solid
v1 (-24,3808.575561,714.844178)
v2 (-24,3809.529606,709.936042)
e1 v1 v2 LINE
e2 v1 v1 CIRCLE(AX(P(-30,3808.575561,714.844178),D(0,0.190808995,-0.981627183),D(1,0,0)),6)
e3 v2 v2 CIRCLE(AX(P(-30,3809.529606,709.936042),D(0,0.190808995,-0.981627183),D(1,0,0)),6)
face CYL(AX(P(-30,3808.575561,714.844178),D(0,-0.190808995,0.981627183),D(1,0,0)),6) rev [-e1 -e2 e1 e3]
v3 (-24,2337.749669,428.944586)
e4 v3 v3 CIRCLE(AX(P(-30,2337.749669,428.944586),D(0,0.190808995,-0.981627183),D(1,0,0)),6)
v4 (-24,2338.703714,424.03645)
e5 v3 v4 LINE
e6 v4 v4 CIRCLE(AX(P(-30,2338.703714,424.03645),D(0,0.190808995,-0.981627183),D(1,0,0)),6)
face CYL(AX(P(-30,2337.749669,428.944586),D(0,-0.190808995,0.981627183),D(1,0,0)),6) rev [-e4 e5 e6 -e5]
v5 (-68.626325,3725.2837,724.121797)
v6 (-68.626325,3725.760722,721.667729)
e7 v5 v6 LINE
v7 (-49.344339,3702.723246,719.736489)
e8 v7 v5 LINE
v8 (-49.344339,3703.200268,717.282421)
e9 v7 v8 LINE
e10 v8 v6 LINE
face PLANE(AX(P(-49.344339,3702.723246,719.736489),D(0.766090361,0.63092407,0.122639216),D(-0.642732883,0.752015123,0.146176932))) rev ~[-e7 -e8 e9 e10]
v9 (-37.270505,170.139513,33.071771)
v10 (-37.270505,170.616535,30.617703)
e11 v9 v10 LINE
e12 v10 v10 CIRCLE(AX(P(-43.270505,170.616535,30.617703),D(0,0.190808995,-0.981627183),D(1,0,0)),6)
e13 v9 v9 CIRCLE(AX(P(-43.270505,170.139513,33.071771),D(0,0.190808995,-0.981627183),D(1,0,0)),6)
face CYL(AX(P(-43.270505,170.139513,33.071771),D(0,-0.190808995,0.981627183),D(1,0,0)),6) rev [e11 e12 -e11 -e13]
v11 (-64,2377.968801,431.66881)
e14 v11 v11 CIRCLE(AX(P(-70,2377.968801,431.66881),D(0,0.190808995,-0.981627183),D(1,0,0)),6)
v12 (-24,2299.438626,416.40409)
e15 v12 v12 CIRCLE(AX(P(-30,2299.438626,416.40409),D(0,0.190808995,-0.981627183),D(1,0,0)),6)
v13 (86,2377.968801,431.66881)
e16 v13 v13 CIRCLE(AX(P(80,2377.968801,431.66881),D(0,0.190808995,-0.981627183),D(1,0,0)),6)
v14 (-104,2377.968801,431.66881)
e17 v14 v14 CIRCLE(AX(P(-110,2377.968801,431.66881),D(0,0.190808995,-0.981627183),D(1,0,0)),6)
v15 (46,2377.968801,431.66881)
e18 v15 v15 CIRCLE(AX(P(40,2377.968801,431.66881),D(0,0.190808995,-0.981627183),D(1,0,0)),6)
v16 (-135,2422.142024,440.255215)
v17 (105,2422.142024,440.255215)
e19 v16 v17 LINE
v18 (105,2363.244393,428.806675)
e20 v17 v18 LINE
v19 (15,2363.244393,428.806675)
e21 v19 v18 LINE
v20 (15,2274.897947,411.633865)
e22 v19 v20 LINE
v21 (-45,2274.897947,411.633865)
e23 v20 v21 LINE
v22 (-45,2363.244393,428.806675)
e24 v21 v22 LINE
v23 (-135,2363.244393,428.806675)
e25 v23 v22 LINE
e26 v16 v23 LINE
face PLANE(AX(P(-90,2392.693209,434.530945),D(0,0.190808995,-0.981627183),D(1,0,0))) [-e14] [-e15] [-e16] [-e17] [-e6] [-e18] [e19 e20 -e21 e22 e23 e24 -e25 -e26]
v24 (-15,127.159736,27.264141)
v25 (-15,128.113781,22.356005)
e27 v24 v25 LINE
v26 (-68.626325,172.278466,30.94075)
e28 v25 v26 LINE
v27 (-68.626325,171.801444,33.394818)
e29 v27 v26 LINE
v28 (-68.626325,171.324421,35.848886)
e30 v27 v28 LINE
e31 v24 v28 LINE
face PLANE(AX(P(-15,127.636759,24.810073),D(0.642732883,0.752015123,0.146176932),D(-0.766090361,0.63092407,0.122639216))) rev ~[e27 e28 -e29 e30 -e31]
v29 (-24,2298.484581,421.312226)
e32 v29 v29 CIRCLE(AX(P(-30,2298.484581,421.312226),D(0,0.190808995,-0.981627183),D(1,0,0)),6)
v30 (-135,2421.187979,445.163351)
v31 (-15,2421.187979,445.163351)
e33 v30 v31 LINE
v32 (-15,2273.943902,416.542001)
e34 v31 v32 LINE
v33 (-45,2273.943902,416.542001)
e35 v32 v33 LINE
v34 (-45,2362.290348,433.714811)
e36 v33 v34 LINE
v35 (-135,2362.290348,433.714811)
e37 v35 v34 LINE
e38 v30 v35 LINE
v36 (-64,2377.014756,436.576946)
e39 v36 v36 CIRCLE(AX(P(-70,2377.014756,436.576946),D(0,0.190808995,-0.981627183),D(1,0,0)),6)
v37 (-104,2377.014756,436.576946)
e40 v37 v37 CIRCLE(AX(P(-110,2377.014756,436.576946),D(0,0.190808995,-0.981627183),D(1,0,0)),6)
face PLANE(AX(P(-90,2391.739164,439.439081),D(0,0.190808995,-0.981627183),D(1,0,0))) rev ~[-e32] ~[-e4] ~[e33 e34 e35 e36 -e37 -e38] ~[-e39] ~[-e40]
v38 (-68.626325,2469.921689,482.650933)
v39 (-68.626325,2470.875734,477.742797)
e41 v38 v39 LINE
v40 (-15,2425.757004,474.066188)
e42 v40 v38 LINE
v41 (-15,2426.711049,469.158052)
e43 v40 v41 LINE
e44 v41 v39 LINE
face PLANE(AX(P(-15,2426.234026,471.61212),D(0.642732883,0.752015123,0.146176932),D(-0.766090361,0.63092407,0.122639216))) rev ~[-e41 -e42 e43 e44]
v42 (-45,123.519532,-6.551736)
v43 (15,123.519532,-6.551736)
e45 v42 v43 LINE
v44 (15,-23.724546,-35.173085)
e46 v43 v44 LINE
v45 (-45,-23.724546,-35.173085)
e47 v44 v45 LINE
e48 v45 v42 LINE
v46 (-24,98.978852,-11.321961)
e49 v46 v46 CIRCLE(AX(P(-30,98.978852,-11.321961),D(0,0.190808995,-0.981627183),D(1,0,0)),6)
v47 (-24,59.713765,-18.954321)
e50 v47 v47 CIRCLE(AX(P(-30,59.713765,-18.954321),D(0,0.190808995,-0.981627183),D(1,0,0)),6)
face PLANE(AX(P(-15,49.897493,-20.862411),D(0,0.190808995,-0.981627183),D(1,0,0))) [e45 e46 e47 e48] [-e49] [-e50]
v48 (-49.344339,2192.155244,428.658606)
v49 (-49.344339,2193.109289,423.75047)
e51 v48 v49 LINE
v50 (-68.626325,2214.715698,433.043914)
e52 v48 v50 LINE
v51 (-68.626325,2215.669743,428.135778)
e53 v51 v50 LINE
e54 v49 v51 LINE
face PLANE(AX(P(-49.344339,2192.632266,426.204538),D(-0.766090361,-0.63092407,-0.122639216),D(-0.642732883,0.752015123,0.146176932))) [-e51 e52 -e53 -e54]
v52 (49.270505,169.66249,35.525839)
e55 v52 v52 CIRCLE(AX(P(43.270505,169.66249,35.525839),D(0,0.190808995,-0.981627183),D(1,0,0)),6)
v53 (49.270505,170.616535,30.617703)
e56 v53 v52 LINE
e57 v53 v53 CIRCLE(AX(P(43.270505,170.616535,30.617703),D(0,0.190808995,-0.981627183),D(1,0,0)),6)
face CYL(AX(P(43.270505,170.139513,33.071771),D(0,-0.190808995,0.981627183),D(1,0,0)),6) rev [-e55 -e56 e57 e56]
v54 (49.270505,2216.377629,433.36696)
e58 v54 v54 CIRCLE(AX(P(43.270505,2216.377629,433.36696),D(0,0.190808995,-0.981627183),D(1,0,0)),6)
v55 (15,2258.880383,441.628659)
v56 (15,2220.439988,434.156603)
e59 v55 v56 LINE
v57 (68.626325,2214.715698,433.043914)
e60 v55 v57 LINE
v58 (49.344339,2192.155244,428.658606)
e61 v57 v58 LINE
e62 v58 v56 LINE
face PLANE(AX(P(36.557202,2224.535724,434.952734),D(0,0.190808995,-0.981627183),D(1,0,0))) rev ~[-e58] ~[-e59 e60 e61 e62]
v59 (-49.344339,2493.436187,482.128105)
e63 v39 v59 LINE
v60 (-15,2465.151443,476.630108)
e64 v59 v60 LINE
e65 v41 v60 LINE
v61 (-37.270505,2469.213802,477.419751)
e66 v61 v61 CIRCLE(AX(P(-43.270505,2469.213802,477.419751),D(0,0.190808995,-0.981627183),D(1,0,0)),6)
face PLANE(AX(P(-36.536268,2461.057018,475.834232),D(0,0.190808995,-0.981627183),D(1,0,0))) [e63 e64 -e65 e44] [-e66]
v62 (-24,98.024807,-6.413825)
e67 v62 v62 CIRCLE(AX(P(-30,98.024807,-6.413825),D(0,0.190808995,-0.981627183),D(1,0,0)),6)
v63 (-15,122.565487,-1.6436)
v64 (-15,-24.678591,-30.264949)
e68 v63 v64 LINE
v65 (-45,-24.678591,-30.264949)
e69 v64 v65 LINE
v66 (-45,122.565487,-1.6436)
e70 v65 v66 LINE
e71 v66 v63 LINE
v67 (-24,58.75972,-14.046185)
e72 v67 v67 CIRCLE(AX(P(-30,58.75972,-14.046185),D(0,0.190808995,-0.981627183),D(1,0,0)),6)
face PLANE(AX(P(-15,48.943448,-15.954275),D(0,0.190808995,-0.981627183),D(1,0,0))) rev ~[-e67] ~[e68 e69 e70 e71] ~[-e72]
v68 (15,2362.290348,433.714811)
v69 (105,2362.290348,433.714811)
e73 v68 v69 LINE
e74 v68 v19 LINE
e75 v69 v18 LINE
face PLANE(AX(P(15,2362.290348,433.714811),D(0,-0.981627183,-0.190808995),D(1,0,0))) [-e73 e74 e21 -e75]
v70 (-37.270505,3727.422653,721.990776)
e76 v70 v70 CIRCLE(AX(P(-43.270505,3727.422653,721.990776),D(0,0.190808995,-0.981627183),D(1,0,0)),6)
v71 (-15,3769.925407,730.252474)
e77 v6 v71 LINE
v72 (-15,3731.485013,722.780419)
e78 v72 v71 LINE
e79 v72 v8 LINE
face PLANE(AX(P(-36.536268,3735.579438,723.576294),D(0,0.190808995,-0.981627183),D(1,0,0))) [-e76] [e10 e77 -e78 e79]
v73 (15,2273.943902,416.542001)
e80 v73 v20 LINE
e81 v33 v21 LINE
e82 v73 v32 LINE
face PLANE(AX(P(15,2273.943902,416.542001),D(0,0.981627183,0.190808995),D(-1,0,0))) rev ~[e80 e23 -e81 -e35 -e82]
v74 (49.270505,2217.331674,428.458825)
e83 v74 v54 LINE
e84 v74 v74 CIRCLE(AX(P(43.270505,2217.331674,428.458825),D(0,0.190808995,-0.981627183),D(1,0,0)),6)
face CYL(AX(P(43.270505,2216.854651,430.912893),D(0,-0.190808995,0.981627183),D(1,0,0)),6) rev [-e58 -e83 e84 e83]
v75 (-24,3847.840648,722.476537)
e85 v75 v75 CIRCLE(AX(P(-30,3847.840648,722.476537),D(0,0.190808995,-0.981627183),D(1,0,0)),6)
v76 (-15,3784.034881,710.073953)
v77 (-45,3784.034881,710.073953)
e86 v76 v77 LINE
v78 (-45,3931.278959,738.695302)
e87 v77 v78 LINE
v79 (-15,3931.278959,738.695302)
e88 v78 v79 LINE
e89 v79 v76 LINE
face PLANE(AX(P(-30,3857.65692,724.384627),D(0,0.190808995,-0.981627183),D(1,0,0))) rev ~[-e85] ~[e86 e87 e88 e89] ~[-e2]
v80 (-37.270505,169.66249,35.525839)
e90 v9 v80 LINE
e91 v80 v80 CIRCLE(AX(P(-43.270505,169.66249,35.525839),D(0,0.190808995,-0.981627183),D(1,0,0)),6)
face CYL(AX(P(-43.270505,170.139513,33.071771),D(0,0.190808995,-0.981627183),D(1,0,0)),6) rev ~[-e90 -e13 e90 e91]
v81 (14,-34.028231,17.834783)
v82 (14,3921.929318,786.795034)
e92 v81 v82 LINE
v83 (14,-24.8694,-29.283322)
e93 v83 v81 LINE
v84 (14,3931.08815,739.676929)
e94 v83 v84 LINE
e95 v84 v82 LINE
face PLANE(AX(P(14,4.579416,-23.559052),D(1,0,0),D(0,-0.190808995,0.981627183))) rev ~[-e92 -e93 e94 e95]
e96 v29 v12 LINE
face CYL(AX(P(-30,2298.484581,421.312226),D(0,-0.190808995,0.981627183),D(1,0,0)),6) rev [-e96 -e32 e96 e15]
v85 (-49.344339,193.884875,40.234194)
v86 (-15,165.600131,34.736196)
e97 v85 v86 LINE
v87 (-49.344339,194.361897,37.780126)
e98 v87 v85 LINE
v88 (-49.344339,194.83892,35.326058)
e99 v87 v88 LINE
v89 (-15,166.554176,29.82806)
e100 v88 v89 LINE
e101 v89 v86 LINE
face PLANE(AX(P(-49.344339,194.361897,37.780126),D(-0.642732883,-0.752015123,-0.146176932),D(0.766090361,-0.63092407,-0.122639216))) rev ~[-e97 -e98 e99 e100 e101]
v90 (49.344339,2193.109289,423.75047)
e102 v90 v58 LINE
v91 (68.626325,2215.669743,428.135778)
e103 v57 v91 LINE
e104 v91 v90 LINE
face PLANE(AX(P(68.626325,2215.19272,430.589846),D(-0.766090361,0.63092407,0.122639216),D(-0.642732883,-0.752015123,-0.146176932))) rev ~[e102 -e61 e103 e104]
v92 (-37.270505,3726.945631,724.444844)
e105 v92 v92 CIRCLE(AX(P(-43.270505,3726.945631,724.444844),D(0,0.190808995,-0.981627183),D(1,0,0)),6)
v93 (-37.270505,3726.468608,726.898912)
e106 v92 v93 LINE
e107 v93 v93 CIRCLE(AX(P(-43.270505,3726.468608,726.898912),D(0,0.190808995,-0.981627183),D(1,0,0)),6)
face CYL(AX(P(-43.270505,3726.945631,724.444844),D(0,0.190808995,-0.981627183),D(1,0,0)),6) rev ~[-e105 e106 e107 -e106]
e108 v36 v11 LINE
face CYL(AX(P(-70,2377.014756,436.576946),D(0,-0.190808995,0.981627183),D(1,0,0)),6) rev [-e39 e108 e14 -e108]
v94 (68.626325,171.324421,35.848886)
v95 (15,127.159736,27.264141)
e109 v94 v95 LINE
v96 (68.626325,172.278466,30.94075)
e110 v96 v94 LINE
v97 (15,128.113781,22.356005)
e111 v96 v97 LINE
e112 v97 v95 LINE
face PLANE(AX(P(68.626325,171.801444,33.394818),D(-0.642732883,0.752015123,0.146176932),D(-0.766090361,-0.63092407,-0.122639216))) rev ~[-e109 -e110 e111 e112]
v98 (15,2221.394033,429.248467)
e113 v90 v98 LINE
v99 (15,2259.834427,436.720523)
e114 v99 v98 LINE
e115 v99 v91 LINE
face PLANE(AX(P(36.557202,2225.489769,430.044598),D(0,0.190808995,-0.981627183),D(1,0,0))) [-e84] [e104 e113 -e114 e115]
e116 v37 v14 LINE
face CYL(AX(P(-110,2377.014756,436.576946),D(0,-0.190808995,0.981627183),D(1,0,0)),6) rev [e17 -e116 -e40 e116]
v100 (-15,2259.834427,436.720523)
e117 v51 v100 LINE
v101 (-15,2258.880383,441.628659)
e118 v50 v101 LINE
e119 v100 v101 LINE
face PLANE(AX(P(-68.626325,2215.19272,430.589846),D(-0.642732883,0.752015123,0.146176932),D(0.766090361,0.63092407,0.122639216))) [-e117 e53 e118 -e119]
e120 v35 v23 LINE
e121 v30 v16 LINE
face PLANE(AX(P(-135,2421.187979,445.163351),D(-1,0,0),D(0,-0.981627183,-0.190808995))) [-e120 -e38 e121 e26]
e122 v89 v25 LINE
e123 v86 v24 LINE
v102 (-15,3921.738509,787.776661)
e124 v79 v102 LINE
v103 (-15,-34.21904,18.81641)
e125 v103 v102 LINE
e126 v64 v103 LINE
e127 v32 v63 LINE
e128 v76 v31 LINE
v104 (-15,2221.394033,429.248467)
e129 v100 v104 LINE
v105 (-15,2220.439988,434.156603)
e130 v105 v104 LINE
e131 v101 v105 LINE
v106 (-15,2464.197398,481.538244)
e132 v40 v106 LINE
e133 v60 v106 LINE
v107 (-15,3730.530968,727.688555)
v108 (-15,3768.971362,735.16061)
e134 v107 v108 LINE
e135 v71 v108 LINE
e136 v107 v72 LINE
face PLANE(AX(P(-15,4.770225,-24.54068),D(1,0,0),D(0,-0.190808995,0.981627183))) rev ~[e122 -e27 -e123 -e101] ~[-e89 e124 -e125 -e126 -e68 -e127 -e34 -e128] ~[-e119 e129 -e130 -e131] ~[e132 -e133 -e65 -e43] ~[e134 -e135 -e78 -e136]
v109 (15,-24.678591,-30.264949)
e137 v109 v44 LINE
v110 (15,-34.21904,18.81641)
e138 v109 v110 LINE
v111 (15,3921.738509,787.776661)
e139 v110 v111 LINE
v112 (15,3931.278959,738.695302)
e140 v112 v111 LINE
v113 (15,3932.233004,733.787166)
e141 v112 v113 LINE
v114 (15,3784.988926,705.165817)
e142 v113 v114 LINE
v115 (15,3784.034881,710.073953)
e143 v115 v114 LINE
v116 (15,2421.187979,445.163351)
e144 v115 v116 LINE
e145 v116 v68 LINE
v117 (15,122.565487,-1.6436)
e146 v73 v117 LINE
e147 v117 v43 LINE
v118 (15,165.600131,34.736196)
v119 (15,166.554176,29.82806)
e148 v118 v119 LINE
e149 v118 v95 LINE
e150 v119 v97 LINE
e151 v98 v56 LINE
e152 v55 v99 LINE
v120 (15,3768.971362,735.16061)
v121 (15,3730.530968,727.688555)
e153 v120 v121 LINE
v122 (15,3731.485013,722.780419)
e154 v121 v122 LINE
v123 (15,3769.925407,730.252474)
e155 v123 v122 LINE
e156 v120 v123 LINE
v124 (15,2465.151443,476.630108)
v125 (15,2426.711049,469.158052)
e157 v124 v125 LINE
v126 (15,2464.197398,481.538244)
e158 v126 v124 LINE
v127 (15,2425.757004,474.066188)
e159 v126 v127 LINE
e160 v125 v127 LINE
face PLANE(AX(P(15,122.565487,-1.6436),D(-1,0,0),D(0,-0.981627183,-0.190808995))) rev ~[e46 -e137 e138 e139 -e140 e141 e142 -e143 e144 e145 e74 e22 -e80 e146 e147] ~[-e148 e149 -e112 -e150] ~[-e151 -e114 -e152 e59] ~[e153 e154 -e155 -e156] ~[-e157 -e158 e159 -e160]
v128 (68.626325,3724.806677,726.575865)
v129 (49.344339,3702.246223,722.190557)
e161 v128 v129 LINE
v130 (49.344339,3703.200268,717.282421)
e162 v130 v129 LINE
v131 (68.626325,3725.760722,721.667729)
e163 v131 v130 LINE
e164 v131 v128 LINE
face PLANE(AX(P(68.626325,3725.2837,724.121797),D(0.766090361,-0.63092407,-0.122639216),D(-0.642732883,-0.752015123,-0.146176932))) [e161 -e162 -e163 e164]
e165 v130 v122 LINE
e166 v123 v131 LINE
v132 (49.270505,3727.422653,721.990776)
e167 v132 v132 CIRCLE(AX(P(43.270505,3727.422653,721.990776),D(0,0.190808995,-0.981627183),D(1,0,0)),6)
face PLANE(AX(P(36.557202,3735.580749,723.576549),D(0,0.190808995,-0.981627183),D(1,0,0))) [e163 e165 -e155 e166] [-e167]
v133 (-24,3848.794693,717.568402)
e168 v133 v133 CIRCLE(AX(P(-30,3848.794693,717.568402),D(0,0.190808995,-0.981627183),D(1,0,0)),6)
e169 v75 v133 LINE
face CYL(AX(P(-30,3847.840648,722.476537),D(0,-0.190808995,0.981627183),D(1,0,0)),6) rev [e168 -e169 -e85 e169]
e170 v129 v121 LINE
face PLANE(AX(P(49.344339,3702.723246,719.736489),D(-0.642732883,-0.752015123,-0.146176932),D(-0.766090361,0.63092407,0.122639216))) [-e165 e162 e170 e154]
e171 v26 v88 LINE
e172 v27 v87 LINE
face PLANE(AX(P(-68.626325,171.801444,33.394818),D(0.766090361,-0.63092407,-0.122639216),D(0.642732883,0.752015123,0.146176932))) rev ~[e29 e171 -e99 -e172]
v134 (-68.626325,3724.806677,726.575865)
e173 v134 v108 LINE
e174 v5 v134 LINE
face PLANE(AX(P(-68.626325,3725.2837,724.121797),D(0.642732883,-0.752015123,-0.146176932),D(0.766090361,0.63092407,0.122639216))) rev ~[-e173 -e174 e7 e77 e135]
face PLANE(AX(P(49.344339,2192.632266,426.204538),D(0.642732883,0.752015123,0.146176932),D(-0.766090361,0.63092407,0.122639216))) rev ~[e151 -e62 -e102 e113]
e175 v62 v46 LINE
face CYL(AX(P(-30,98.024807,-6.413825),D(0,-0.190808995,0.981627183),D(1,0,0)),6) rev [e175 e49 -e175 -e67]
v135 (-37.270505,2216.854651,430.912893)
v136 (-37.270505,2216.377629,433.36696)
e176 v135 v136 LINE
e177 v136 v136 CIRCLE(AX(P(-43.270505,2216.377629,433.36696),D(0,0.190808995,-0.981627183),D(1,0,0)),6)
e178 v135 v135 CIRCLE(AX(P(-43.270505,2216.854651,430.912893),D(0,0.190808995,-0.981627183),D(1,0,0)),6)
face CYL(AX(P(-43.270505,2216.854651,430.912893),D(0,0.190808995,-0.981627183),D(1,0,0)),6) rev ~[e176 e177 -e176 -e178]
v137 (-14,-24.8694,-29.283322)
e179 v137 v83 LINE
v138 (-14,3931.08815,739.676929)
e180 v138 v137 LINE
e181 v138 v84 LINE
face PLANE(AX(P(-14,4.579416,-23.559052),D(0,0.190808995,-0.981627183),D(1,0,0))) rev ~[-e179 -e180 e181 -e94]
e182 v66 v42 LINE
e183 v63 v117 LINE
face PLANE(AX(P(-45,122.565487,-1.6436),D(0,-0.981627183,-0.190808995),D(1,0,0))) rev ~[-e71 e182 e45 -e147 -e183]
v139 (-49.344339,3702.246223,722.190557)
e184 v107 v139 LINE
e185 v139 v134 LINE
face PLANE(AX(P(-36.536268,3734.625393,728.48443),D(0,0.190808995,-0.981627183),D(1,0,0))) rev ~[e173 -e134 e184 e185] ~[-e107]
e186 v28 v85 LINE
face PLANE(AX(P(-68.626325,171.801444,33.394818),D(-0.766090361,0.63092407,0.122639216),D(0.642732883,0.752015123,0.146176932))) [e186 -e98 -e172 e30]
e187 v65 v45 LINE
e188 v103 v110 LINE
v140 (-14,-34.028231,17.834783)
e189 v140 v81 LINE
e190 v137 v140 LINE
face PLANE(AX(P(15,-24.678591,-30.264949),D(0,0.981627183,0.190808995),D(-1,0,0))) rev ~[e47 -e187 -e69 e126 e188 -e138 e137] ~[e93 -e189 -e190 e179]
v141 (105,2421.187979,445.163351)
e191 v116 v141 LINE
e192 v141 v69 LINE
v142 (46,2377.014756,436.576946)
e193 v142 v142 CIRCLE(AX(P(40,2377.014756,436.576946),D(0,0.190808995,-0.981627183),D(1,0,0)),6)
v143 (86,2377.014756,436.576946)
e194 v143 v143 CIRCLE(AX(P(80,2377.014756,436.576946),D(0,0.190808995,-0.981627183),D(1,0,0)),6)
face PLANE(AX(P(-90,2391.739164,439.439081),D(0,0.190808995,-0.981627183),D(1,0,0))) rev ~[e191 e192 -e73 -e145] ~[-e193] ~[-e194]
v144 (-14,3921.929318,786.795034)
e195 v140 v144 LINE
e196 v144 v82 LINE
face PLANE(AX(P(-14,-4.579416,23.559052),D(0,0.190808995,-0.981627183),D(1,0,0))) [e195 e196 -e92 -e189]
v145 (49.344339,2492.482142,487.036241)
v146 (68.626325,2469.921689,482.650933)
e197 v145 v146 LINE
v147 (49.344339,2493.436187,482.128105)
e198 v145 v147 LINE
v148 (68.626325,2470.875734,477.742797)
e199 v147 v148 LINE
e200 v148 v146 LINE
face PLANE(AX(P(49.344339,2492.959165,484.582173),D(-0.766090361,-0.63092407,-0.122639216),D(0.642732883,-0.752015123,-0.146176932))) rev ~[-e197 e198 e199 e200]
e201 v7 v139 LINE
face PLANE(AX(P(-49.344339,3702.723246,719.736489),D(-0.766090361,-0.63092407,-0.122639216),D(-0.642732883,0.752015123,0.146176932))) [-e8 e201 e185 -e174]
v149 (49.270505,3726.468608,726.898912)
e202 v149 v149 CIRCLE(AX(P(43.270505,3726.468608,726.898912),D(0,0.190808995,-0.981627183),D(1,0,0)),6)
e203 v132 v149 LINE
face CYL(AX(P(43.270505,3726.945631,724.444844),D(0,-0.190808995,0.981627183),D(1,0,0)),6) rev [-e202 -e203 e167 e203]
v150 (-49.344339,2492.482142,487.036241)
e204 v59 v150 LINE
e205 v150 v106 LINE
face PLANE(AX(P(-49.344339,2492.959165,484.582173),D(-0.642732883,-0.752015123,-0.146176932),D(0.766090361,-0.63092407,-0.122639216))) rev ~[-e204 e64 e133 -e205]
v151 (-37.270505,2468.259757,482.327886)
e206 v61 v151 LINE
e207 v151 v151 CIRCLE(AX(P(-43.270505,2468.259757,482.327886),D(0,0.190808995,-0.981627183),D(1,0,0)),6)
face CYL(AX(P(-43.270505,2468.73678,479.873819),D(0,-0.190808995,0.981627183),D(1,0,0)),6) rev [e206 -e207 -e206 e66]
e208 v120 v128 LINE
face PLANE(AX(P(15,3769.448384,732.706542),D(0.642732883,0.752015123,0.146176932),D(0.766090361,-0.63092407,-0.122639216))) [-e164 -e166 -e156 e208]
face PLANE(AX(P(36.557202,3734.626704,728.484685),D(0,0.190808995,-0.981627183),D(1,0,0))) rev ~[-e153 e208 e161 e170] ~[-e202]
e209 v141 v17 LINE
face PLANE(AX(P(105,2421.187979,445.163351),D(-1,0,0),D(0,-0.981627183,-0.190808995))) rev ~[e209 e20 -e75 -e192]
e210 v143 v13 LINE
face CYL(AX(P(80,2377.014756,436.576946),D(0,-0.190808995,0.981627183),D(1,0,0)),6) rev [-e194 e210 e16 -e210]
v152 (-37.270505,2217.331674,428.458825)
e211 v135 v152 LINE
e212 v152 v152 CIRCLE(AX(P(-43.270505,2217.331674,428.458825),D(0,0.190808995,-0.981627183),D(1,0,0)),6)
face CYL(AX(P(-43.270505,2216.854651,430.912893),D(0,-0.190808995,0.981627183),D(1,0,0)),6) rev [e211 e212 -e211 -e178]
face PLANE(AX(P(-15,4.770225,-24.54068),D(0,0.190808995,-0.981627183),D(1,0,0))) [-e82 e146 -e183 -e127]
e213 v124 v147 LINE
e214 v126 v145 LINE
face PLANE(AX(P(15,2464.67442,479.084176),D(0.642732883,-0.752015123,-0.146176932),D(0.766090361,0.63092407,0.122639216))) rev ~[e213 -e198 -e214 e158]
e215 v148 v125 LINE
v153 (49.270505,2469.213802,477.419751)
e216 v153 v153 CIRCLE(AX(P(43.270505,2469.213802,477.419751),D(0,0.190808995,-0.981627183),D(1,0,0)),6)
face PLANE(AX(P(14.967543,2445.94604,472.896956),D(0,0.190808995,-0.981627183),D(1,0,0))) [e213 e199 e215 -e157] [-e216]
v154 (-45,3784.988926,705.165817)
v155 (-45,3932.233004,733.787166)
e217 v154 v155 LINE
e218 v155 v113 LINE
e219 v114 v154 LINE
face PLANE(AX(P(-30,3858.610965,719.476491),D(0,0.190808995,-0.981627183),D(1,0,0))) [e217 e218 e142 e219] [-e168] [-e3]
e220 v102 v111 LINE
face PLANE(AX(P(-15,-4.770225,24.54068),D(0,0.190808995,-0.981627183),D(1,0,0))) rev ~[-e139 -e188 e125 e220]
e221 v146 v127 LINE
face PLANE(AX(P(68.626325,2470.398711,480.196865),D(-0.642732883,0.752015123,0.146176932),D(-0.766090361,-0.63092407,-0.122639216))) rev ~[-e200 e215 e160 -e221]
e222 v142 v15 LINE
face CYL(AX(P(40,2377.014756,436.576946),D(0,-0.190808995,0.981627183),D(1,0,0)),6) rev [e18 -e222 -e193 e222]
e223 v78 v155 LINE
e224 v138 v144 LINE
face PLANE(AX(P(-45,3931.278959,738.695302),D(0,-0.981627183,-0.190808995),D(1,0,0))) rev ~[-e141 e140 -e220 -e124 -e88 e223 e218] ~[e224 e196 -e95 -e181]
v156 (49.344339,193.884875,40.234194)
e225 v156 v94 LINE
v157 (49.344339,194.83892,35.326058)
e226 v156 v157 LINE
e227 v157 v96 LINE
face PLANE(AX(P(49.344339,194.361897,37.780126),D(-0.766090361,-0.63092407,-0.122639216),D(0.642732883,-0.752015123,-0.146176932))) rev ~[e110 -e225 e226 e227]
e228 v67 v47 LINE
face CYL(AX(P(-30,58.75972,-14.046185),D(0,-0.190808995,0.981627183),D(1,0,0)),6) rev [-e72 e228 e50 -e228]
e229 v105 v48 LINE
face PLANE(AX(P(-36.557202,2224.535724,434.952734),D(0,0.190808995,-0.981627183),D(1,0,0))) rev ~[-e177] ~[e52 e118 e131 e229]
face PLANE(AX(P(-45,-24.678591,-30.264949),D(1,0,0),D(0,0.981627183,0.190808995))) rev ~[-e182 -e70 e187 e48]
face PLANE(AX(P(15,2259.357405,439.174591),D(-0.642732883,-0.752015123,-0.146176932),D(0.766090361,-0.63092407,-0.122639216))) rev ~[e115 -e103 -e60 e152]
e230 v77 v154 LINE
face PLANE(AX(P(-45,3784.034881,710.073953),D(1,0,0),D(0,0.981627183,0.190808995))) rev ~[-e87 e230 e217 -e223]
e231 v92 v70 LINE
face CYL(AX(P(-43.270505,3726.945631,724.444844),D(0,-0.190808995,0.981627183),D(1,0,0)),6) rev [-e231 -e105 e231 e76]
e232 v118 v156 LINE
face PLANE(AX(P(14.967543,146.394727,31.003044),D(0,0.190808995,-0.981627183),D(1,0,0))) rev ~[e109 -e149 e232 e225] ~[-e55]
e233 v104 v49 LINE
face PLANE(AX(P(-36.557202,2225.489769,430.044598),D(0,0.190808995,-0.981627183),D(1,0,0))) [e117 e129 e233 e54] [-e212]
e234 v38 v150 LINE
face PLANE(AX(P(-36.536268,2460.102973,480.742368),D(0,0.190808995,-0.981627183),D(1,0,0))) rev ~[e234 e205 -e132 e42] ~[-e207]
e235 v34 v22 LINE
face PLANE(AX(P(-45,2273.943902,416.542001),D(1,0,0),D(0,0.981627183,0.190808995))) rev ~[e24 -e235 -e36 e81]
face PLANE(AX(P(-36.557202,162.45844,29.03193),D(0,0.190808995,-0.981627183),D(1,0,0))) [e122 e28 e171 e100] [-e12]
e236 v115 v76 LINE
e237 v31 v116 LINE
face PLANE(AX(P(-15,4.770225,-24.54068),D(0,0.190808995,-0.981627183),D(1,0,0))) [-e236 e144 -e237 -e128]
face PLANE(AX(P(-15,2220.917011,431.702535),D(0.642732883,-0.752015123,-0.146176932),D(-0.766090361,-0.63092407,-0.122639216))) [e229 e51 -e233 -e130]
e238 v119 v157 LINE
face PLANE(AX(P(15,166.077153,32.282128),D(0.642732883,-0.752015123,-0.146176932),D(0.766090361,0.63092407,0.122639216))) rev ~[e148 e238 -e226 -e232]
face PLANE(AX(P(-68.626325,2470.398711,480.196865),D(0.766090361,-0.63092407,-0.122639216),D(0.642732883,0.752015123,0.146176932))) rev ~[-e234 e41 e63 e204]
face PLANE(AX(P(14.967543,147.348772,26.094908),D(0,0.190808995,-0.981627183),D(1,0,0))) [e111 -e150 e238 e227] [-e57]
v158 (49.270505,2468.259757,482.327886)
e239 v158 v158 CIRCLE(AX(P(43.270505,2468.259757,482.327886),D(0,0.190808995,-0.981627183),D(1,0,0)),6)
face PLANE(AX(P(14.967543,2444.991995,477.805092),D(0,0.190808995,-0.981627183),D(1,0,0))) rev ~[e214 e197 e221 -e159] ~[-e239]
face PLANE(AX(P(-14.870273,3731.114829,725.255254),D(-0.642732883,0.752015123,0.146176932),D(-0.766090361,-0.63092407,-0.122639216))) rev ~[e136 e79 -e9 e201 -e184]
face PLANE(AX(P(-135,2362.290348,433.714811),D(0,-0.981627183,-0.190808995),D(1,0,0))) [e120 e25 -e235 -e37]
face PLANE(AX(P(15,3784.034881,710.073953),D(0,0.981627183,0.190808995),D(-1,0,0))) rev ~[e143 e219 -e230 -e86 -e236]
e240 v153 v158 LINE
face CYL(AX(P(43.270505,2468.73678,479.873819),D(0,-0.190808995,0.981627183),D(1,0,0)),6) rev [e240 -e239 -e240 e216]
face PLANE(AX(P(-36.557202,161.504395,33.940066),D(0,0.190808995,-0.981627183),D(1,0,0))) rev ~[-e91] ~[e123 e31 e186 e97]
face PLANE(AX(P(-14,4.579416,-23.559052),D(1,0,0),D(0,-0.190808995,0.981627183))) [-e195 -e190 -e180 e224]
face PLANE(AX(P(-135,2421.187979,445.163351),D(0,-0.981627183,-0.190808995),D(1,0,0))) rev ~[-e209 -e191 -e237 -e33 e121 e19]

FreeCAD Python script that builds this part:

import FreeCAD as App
import Part
import Sketcher
from FreeCAD import Vector
Q = App.Units.Quantity

doc = App.newDocument("Part")
body = doc.addObject("PartDesign::Body", "Body")

# Sketch on an angled plane
sketch1 = body.newObject("Sketcher::SketchObject", "Sketch")
sketch1.Placement = App.Placement(Vector(0, 0, 0), App.Rotation(Vector(1, 0, 0), Vector(0, -0.190808995, 0.981627183), Vector(0, -0.981627183, -0.190808995), "ZXY"))
sketch1.addGeometry(Part.LineSegment(Vector(-15, 25, 0), Vector(-15, -25, 0)), False)
sketch1.addGeometry(Part.LineSegment(Vector(-15, -25, 0), Vector(15, -25, 0)), False)
sketch1.addGeometry(Part.LineSegment(Vector(15, -25, 0), Vector(15, 25, 0)), False)
sketch1.addGeometry(Part.LineSegment(Vector(15, 25, 0), Vector(-15, 25, 0)), False)
sketch1.addGeometry(Part.LineSegment(Vector(14, -24, 0), Vector(-14, -24, 0)), False)
sketch1.addGeometry(Part.LineSegment(Vector(-14, -24, 0), Vector(-14, 24, 0)), False)
sketch1.addGeometry(Part.LineSegment(Vector(-14, 24, 0), Vector(14, 24, 0)), False)
sketch1.addGeometry(Part.LineSegment(Vector(14, 24, 0), Vector(14, -24, 0)), False)
sketch1.addConstraint(Sketcher.Constraint("Coincident", 0, 2, 1, 1))
sketch1.addConstraint(Sketcher.Constraint("Coincident", 1, 2, 2, 1))
sketch1.addConstraint(Sketcher.Constraint("Coincident", 2, 2, 3, 1))
sketch1.addConstraint(Sketcher.Constraint("Coincident", 3, 2, 0, 1))
sketch1.addConstraint(Sketcher.Constraint("Coincident", 4, 2, 5, 1))
sketch1.addConstraint(Sketcher.Constraint("Coincident", 5, 2, 6, 1))
sketch1.addConstraint(Sketcher.Constraint("Coincident", 6, 2, 7, 1))
sketch1.addConstraint(Sketcher.Constraint("Coincident", 7, 2, 4, 1))
sketch1.addConstraint(Sketcher.Constraint("Vertical", 0))
sketch1.addConstraint(Sketcher.Constraint("Horizontal", 1))
sketch1.addConstraint(Sketcher.Constraint("Vertical", 2))
sketch1.addConstraint(Sketcher.Constraint("Horizontal", 3))
sketch1.addConstraint(Sketcher.Constraint("Horizontal", 4))
sketch1.addConstraint(Sketcher.Constraint("Vertical", 5))
sketch1.addConstraint(Sketcher.Constraint("Horizontal", 6))
sketch1.addConstraint(Sketcher.Constraint("Vertical", 7))
sketch1.addConstraint(Sketcher.Constraint("Symmetric", 0, 2, 2, 2, -1, 1))
sketch1.addConstraint(Sketcher.Constraint("Symmetric", 4, 2, 6, 2, -1, 1))
sketch1.addConstraint(Sketcher.Constraint("DistanceX", 1, 1, 1, 2, Q("30 mm")))
sketch1.addConstraint(Sketcher.Constraint("DistanceX", 4, 2, 4, 1, Q("28 mm")))
sketch1.addConstraint(Sketcher.Constraint("DistanceY", 0, 2, 0, 1, Q("50 mm")))
sketch1.addConstraint(Sketcher.Constraint("DistanceY", 5, 1, 5, 2, Q("48 mm")))
pad1 = body.newObject("PartDesign::Pad", "Pad")
pad1.Profile = sketch1
pad1.Type = "TwoLengths"
pad1.Length = 30
pad1.Length2 = 4000

# Sketch on an angled plane
sketch2 = body.newObject("Sketcher::SketchObject", "Sketch001")
sketch2.Placement = App.Placement(Vector(0, 4.770225, -24.54068), App.Rotation(Vector(1, 0, 0), Vector(0, -0.981627183, -0.190808995), Vector(0, 0.190808995, -0.981627183), "ZXY"))
sketch2.addGeometry(Part.LineSegment(Vector(-45, -3999.999996, 0), Vector(15, -3999.999996, 0)), False)
sketch2.addGeometry(Part.LineSegment(Vector(15, -3999.999996, 0), Vector(15, -3849.999996, 0)), False)
sketch2.addGeometry(Part.LineSegment(Vector(15, -3849.999996, 0), Vector(-45, -3849.999996, 0)), False)
sketch2.addGeometry(Part.LineSegment(Vector(-45, -3849.999996, 0), Vector(-45, -3999.999996, 0)), False)
sketch2.addGeometry(Part.Circle(Vector(-30, -3914.999996, 0), Vector(0, 0, 1), 6), False)
sketch2.addGeometry(Part.Circle(Vector(-30, -3874.999996, 0), Vector(0, 0, 1), 6), False)
sketch2.addConstraint(Sketcher.Constraint("Coincident", 0, 2, 1, 1))
sketch2.addConstraint(Sketcher.Constraint("Coincident", 1, 2, 2, 1))
sketch2.addConstraint(Sketcher.Constraint("Coincident", 2, 2, 3, 1))
sketch2.addConstraint(Sketcher.Constraint("Coincident", 3, 2, 0, 1))
sketch2.addConstraint(Sketcher.Constraint("Horizontal", 0))
sketch2.addConstraint(Sketcher.Constraint("Vertical", 1))
sketch2.addConstraint(Sketcher.Constraint("Horizontal", 2))
sketch2.addConstraint(Sketcher.Constraint("Vertical", 3))
sketch2.addConstraint(Sketcher.Constraint("Equal", 4, 5))
sketch2.addConstraint(Sketcher.Constraint("Vertical", 4, 3, 5, 3))
sketch2.addConstraint(Sketcher.Constraint("Diameter", 4, Q("12 mm")))
sketch2.addConstraint(Sketcher.Constraint("DistanceX", 0, 1, 0, 2, Q("60 mm")))
sketch2.addConstraint(Sketcher.Constraint("DistanceY", 1, 1, 1, 2, Q("150 mm")))
sketch2.addConstraint(Sketcher.Constraint("DistanceX", 4, 3, -1, 1, Q("30 mm")))
sketch2.addConstraint(Sketcher.Constraint("DistanceX", -1, 1, 0, 2, Q("15 mm")))
sketch2.addConstraint(Sketcher.Constraint("DistanceY", 4, 3, 5, 3, Q("40 mm")))
sketch2.addConstraint(Sketcher.Constraint("DistanceY", 0, 2, 4, 3, Q("85 mm")))
sketch2.addConstraint(Sketcher.Constraint("DistanceY", 4, 3, -1, 1, Q("3914.999996 mm")))
pad2 = body.newObject("PartDesign::Pad", "Pad001")
pad2.Profile = sketch2
pad2.Length = 5

# Sketch on an angled plane
sketch3 = body.newObject("Sketcher::SketchObject", "Sketch002")
sketch3.Placement = App.Placement(Vector(0, 4.770225, -24.54068), App.Rotation(Vector(1, 0, 0), Vector(0, -0.981627183, -0.190808995), Vector(0, 0.190808995, -0.981627183), "ZXY"))
sketch3.addGeometry(Part.LineSegment(Vector(-135, -2401.645106, 0), Vector(-135, -2461.645106, 0)), False)
sketch3.addGeometry(Part.LineSegment(Vector(-135, -2461.645106, 0), Vector(105, -2461.645106, 0)), False)
sketch3.addGeometry(Part.LineSegment(Vector(105, -2461.645106, 0), Vector(105, -2401.645106, 0)), False)
sketch3.addGeometry(Part.LineSegment(Vector(105, -2401.645106, 0), Vector(15, -2401.645106, 0)), False)
sketch3.addGeometry(Part.LineSegment(Vector(15, -2401.645106, 0), Vector(15, -2311.645106, 0)), False)
sketch3.addGeometry(Part.LineSegment(Vector(15, -2311.645106, 0), Vector(-45, -2311.645106, 0)), False)
sketch3.addGeometry(Part.LineSegment(Vector(-45, -2311.645106, 0), Vector(-45, -2401.645106, 0)), False)
sketch3.addGeometry(Part.LineSegment(Vector(-45, -2401.645106, 0), Vector(-135, -2401.645106, 0)), False)
sketch3.addGeometry(Part.Circle(Vector(-110, -2416.645106, 0), Vector(0, 0, 1), 6), False)
sketch3.addGeometry(Part.Circle(Vector(-70, -2416.645106, 0), Vector(0, 0, 1), 6), False)
sketch3.addGeometry(Part.Circle(Vector(40, -2416.645106, 0), Vector(0, 0, 1), 6), False)
sketch3.addGeometry(Part.Circle(Vector(80, -2416.645106, 0), Vector(0, 0, 1), 6), False)
sketch3.addGeometry(Part.Circle(Vector(-30, -2376.645106, 0), Vector(0, 0, 1), 6), False)
sketch3.addGeometry(Part.Circle(Vector(-30, -2336.645106, 0), Vector(0, 0, 1), 6), False)
sketch3.addConstraint(Sketcher.Constraint("Coincident", 0, 2, 1, 1))
sketch3.addConstraint(Sketcher.Constraint("Coincident", 1, 2, 2, 1))
sketch3.addConstraint(Sketcher.Constraint("Coincident", 2, 2, 3, 1))
sketch3.addConstraint(Sketcher.Constraint("Coincident", 3, 2, 4, 1))
sketch3.addConstraint(Sketcher.Constraint("Coincident", 4, 2, 5, 1))
sketch3.addConstraint(Sketcher.Constraint("Coincident", 5, 2, 6, 1))
sketch3.addConstraint(Sketcher.Constraint("Coincident", 6, 2, 7, 1))
sketch3.addConstraint(Sketcher.Constraint("Coincident", 7, 2, 0, 1))
sketch3.addConstraint(Sketcher.Constraint("Vertical", 0))
sketch3.addConstraint(Sketcher.Constraint("Horizontal", 1))
sketch3.addConstraint(Sketcher.Constraint("Vertical", 2))
sketch3.addConstraint(Sketcher.Constraint("Horizontal", 3))
sketch3.addConstraint(Sketcher.Constraint("Vertical", 4))
sketch3.addConstraint(Sketcher.Constraint("Horizontal", 5))
sketch3.addConstraint(Sketcher.Constraint("Vertical", 6))
sketch3.addConstraint(Sketcher.Constraint("Horizontal", 7))
sketch3.addConstraint(Sketcher.Constraint("Equal", 8, 9))
sketch3.addConstraint(Sketcher.Constraint("Equal", 9, 10))
sketch3.addConstraint(Sketcher.Constraint("Equal", 10, 11))
sketch3.addConstraint(Sketcher.Constraint("Equal", 11, 12))
sketch3.addConstraint(Sketcher.Constraint("Equal", 12, 13))
sketch3.addConstraint(Sketcher.Constraint("Horizontal", 8, 3, 9, 3))
sketch3.addConstraint(Sketcher.Constraint("Horizontal", 9, 3, 10, 3))
sketch3.addConstraint(Sketcher.Constraint("Horizontal", 10, 3, 11, 3))
sketch3.addConstraint(Sketcher.Constraint("Horizontal", 3, 2, 6, 2))
sketch3.addConstraint(Sketcher.Constraint("Vertical", 12, 3, 13, 3))
sketch3.addConstraint(Sketcher.Constraint("Equal", 3, 7))
sketch3.addConstraint(Sketcher.Constraint("Equal", 5, 0))
sketch3.addConstraint(Sketcher.Constraint("Equal", 7, 4))
sketch3.addConstraint(Sketcher.Constraint("Diameter", 8, Q("12 mm")))
sketch3.addConstraint(Sketcher.Constraint("DistanceX", 1, 1, 1, 2, Q("240 mm")))
sketch3.addConstraint(Sketcher.Constraint("DistanceX", 3, 2, 3, 1, Q("90 mm")))
sketch3.addConstraint(Sketcher.Constraint("DistanceX", 8, 3, -1, 1, Q("110 mm")))
sketch3.addConstraint(Sketcher.Constraint("DistanceX", 9, 3, -1, 1, Q("70 mm")))
sketch3.addConstraint(Sketcher.Constraint("DistanceX", -1, 1, 10, 3, Q("40 mm")))
sketch3.addConstraint(Sketcher.Constraint("DistanceX", -1, 1, 11, 3, Q("80 mm")))
sketch3.addConstraint(Sketcher.Constraint("DistanceX", 12, 3, -1, 1, Q("30 mm")))
sketch3.addConstraint(Sketcher.Constraint("DistanceX", 0, 2, -1, 1, Q("135 mm")))
sketch3.addConstraint(Sketcher.Constraint("DistanceY", 9, 3, 12, 3, Q("40 mm")))
sketch3.addConstraint(Sketcher.Constraint("DistanceY", 12, 3, 13, 3, Q("40 mm")))
sketch3.addConstraint(Sketcher.Constraint("DistanceY", 0, 2, 8, 3, Q("45 mm")))
sketch3.addConstraint(Sketcher.Constraint("DistanceY", 8, 3, -1, 1, Q("2416.645106 mm")))
pad3 = body.newObject("PartDesign::Pad", "Pad002")
pad3.Profile = sketch3
pad3.Length = 5

# Sketch on an angled plane
sketch4 = body.newObject("Sketcher::SketchObject", "Sketch003")
sketch4.Placement = App.Placement(Vector(0, 0, 0), App.Rotation(Vector(1, 0, 0), Vector(0, -0.981627183, -0.190808995), Vector(0, 0.190808995, -0.981627183), "ZXY"))
sketch4.addGeometry(Part.LineSegment(Vector(49.344339, -3772.025984, 0), Vector(15, -3800.840125, 0)), False)
sketch4.addGeometry(Part.LineSegment(Vector(15, -3800.840125, 0), Vector(14.870273, -3800.948963, 0)), False)
sketch4.addGeometry(Part.LineSegment(Vector(14.870273, -3800.948963, 0), Vector(15, -3839.999996, 0)), False)
sketch4.addGeometry(Part.LineSegment(Vector(15, -3839.999996, 0), Vector(68.626325, -3795.008694, 0)), False)
sketch4.addGeometry(Part.LineSegment(Vector(68.626325, -3795.008694, 0), Vector(49.344339, -3772.025984, 0)), False)
sketch4.addGeometry(Part.Circle(Vector(43.270505, -3796.701731, 0), Vector(0, 0, 1), 6), False)
sketch4.addGeometry(Part.LineSegment(Vector(14.870273, -2510.696139, 0), Vector(15, -2510.804977, 0)), False)
sketch4.addGeometry(Part.LineSegment(Vector(15, -2510.804977, 0), Vector(49.344339, -2539.619118, 0)), False)
sketch4.addGeometry(Part.LineSegment(Vector(49.344339, -2539.619118, 0), Vector(68.626325, -2516.636408, 0)), False)
sketch4.addGeometry(Part.LineSegment(Vector(68.626325, -2516.636408, 0), Vector(15, -2471.645106, 0)), False)
sketch4.addGeometry(Part.LineSegment(Vector(15, -2471.645106, 0), Vector(14.870273, -2510.696139, 0)), False)
sketch4.addGeometry(Part.Circle(Vector(43.270505, -2514.943371, 0), Vector(0, 0, 1), 6), False)
sketch4.addGeometry(Part.LineSegment(Vector(49.344339, -2233.671093, 0), Vector(15, -2262.485235, 0)), False)
sketch4.addGeometry(Part.LineSegment(Vector(15, -2262.485235, 0), Vector(14.870273, -2262.594073, 0)), False)
sketch4.addGeometry(Part.LineSegment(Vector(14.870273, -2262.594073, 0), Vector(15, -2301.645106, 0)), False)
sketch4.addGeometry(Part.LineSegment(Vector(15, -2301.645106, 0), Vector(68.626325, -2256.653804, 0)), False)
sketch4.addGeometry(Part.LineSegment(Vector(68.626325, -2256.653804, 0), Vector(49.344339, -2233.671093, 0)), False)
sketch4.addGeometry(Part.Circle(Vector(43.270505, -2258.346841, 0), Vector(0, 0, 1), 6), False)
sketch4.addGeometry(Part.LineSegment(Vector(15, -130.025697, 0), Vector(14.870273, -169.07673, 0)), False)
sketch4.addGeometry(Part.LineSegment(Vector(14.870273, -169.07673, 0), Vector(15, -169.185568, 0)), False)
sketch4.addGeometry(Part.LineSegment(Vector(15, -169.185568, 0), Vector(49.344339, -197.99971, 0)), False)
sketch4.addGeometry(Part.LineSegment(Vector(49.344339, -197.99971, 0), Vector(68.626325, -175.016999, 0)), False)
sketch4.addGeometry(Part.LineSegment(Vector(68.626325, -175.016999, 0), Vector(15, -130.025697, 0)), False)
sketch4.addGeometry(Part.Circle(Vector(43.270505, -173.323962, 0), Vector(0, 0, 1), 6), False)
sketch4.addGeometry(Part.LineSegment(Vector(-68.626325, -175.016999, 0), Vector(-49.344339, -197.99971, 0)), False)
sketch4.addGeometry(Part.LineSegment(Vector(-49.344339, -197.99971, 0), Vector(-15, -169.185568, 0)), False)
sketch4.addGeometry(Part.LineSegment(Vector(-15, -169.185568, 0), Vector(-15, -130.025697, 0)), False)
sketch4.addGeometry(Part.LineSegment(Vector(-15, -130.025697, 0), Vector(-68.626325, -175.016999, 0)), False)
sketch4.addGeometry(Part.Circle(Vector(-43.270505, -173.323962, 0), Vector(0, 0, 1), 6), False)
sketch4.addGeometry(Part.LineSegment(Vector(-15, -2301.645106, 0), Vector(-15, -2262.485235, 0)), False)
sketch4.addGeometry(Part.LineSegment(Vector(-15, -2262.485235, 0), Vector(-49.344339, -2233.671093, 0)), False)
sketch4.addGeometry(Part.LineSegment(Vector(-49.344339, -2233.671093, 0), Vector(-68.626325, -2256.653804, 0)), False)
sketch4.addGeometry(Part.LineSegment(Vector(-68.626325, -2256.653804, 0), Vector(-15, -2301.645106, 0)), False)
sketch4.addGeometry(Part.Circle(Vector(-43.270505, -2258.346841, 0), Vector(0, 0, 1), 6), False)
sketch4.addGeometry(Part.LineSegment(Vector(-14.870273, -2510.696139, 0), Vector(-15, -2471.645106, 0)), False)
sketch4.addGeometry(Part.LineSegment(Vector(-15, -2471.645106, 0), Vector(-68.626325, -2516.636408, 0)), False)
sketch4.addGeometry(Part.LineSegment(Vector(-68.626325, -2516.636408, 0), Vector(-49.344339, -2539.619118, 0)), False)
sketch4.addGeometry(Part.LineSegment(Vector(-49.344339, -2539.619118, 0), Vector(-14.870273, -2510.696139, 0)), False)
sketch4.addGeometry(Part.Circle(Vector(-43.270505, -2514.943371, 0), Vector(0, 0, 1), 6), False)
sketch4.addGeometry(Part.LineSegment(Vector(-68.626325, -3795.008694, 0), Vector(-15, -3839.999996, 0)), False)
sketch4.addGeometry(Part.LineSegment(Vector(-15, -3839.999996, 0), Vector(-14.870273, -3800.948963, 0)), False)
sketch4.addGeometry(Part.LineSegment(Vector(-14.870273, -3800.948963, 0), Vector(-49.344339, -3772.025984, 0)), False)
sketch4.addGeometry(Part.LineSegment(Vector(-49.344339, -3772.025984, 0), Vector(-68.626325, -3795.008694, 0)), False)
sketch4.addGeometry(Part.Circle(Vector(-43.270505, -3796.701731, 0), Vector(0, 0, 1), 6), False)
sketch4.addConstraint(Sketcher.Constraint("Coincident", 0, 2, 1, 1))
sketch4.addConstraint(Sketcher.Constraint("Coincident", 1, 2, 2, 1))
sketch4.addConstraint(Sketcher.Constraint("Coincident", 2, 2, 3, 1))
sketch4.addConstraint(Sketcher.Constraint("Coincident", 3, 2, 4, 1))
sketch4.addConstraint(Sketcher.Constraint("Coincident", 4, 2, 0, 1))
sketch4.addConstraint(Sketcher.Constraint("Coincident", 6, 2, 7, 1))
sketch4.addConstraint(Sketcher.Constraint("Coincident", 7, 2, 8, 1))
sketch4.addConstraint(Sketcher.Constraint("Coincident", 8, 2, 9, 1))
sketch4.addConstraint(Sketcher.Constraint("Coincident", 9, 2, 10, 1))
sketch4.addConstraint(Sketcher.Constraint("Coincident", 10, 2, 6, 1))
sketch4.addConstraint(Sketcher.Constraint("Coincident", 12, 2, 13, 1))
sketch4.addConstraint(Sketcher.Constraint("Coincident", 13, 2, 14, 1))
sketch4.addConstraint(Sketcher.Constraint("Coincident", 14, 2, 15, 1))
sketch4.addConstraint(Sketcher.Constraint("Coincident", 15, 2, 16, 1))
sketch4.addConstraint(Sketcher.Constraint("Coincident", 16, 2, 12, 1))
sketch4.addConstraint(Sketcher.Constraint("Coincident", 18, 2, 19, 1))
sketch4.addConstraint(Sketcher.Constraint("Coincident", 19, 2, 20, 1))
sketch4.addConstraint(Sketcher.Constraint("Coincident", 20, 2, 21, 1))
sketch4.addConstraint(Sketcher.Constraint("Coincident", 21, 2, 22, 1))
sketch4.addConstraint(Sketcher.Constraint("Coincident", 22, 2, 18, 1))
sketch4.addConstraint(Sketcher.Constraint("Coincident", 24, 2, 25, 1))
sketch4.addConstraint(Sketcher.Constraint("Coincident", 25, 2, 26, 1))
sketch4.addConstraint(Sketcher.Constraint("Coincident", 26, 2, 27, 1))
sketch4.addConstraint(Sketcher.Constraint("Coincident", 27, 2, 24, 1))
sketch4.addConstraint(Sketcher.Constraint("Coincident", 29, 2, 30, 1))
sketch4.addConstraint(Sketcher.Constraint("Coincident", 30, 2, 31, 1))
sketch4.addConstraint(Sketcher.Constraint("Coincident", 31, 2, 32, 1))
sketch4.addConstraint(Sketcher.Constraint("Coincident", 32, 2, 29, 1))
sketch4.addConstraint(Sketcher.Constraint("Coincident", 34, 2, 35, 1))
sketch4.addConstraint(Sketcher.Constraint("Coincident", 35, 2, 36, 1))
sketch4.addConstraint(Sketcher.Constraint("Coincident", 36, 2, 37, 1))
sketch4.addConstraint(Sketcher.Constraint("Coincident", 37, 2, 34, 1))
sketch4.addConstraint(Sketcher.Constraint("Coincident", 39, 2, 40, 1))
sketch4.addConstraint(Sketcher.Constraint("Coincident", 40, 2, 41, 1))
sketch4.addConstraint(Sketcher.Constraint("Coincident", 41, 2, 42, 1))
sketch4.addConstraint(Sketcher.Constraint("Coincident", 42, 2, 39, 1))
sketch4.addConstraint(Sketcher.Constraint("Vertical", 26))
sketch4.addConstraint(Sketcher.Constraint("Vertical", 29))
sketch4.addConstraint(Sketcher.Constraint("Equal", 5, 11))
sketch4.addConstraint(Sketcher.Constraint("Equal", 11, 17))
sketch4.addConstraint(Sketcher.Constraint("Equal", 17, 23))
sketch4.addConstraint(Sketcher.Constraint("Equal", 23, 28))
sketch4.addConstraint(Sketcher.Constraint("Equal", 28, 33))
sketch4.addConstraint(Sketcher.Constraint("Equal", 33, 38))
sketch4.addConstraint(Sketcher.Constraint("Equal", 38, 43))
sketch4.addConstraint(Sketcher.Constraint("Symmetric", 23, 3, 28, 3, -2))
sketch4.addConstraint(Sketcher.Constraint("Symmetric", 17, 3, 33, 3, -2))
sketch4.addConstraint(Sketcher.Constraint("Symmetric", 11, 3, 38, 3, -2))
sketch4.addConstraint(Sketcher.Constraint("Symmetric", 5, 3, 43, 3, -2))
sketch4.addConstraint(Sketcher.Constraint("Symmetric", 20, 2, 24, 2, -2))
sketch4.addConstraint(Sketcher.Constraint("Symmetric", 19, 2, 25, 2, -2))
sketch4.addConstraint(Sketcher.Constraint("Symmetric", 22, 2, 26, 2, -2))
sketch4.addConstraint(Sketcher.Constraint("Symmetric", 21, 2, 27, 2, -2))
sketch4.addConstraint(Sketcher.Constraint("Symmetric", 12, 2, 29, 2, -2))
sketch4.addConstraint(Sketcher.Constraint("Symmetric", 16, 2, 30, 2, -2))
sketch4.addConstraint(Sketcher.Constraint("Symmetric", 15, 2, 31, 2, -2))
sketch4.addConstraint(Sketcher.Constraint("Symmetric", 14, 2, 32, 2, -2))
sketch4.addConstraint(Sketcher.Constraint("Symmetric", 9, 2, 34, 2, -2))
sketch4.addConstraint(Sketcher.Constraint("Symmetric", 8, 2, 35, 2, -2))
sketch4.addConstraint(Sketcher.Constraint("Symmetric", 7, 2, 36, 2, -2))
sketch4.addConstraint(Sketcher.Constraint("Symmetric", 10, 2, 37, 2, -2))
sketch4.addConstraint(Sketcher.Constraint("Symmetric", 2, 2, 39, 2, -2))
sketch4.addConstraint(Sketcher.Constraint("Symmetric", 1, 2, 40, 2, -2))
sketch4.addConstraint(Sketcher.Constraint("Symmetric", 4, 2, 41, 2, -2))
sketch4.addConstraint(Sketcher.Constraint("Symmetric", 3, 2, 42, 2, -2))
sketch4.addConstraint(Sketcher.Constraint("Parallel", 0, 1))
sketch4.addConstraint(Sketcher.Constraint("Parallel", 1, 3))
sketch4.addConstraint(Sketcher.Constraint("Perpendicular", 3, 4))
sketch4.addConstraint(Sketcher.Constraint("Parallel", 6, 7))
sketch4.addConstraint(Sketcher.Constraint("Perpendicular", 7, 8))
sketch4.addConstraint(Sketcher.Constraint("Perpendicular", 8, 9))
sketch4.addConstraint(Sketcher.Constraint("Perpendicular", 4, 12))
sketch4.addConstraint(Sketcher.Constraint("Parallel", 12, 13))
sketch4.addConstraint(Sketcher.Constraint("Parallel", 2, 14))
sketch4.addConstraint(Sketcher.Constraint("Parallel", 12, 15))
sketch4.addConstraint(Sketcher.Constraint("Perpendicular", 15, 16))
sketch4.addConstraint(Sketcher.Constraint("Parallel", 10, 18))
sketch4.addConstraint(Sketcher.Constraint("Parallel", 9, 19))
sketch4.addConstraint(Sketcher.Constraint("Parallel", 9, 20))
sketch4.addConstraint(Sketcher.Constraint("Perpendicular", 20, 21))
sketch4.addConstraint(Sketcher.Constraint("Perpendicular", 21, 22))
sketch4.addConstraint(Sketcher.Constraint("Parallel", 16, 24))
sketch4.addConstraint(Sketcher.Constraint("Parallel", 14, 34))
sketch4.addConstraint(Sketcher.Constraint("Vertical", 5, 3, 11, 3))
sketch4.addConstraint(Sketcher.Constraint("Vertical", 11, 3, 17, 3))
sketch4.addConstraint(Sketcher.Constraint("Vertical", 17, 3, 23, 3))
sketch4.addConstraint(Sketcher.Constraint("Vertical", 0, 2, 2, 2))
sketch4.addConstraint(Sketcher.Constraint("Vertical", 2, 2, 6, 2))
sketch4.addConstraint(Sketcher.Constraint("Vertical", 4, 2, 7, 2))
sketch4.addConstraint(Sketcher.Constraint("Vertical", 3, 2, 8, 2))
sketch4.addConstraint(Sketcher.Constraint("Vertical", 6, 2, 9, 2))
sketch4.addConstraint(Sketcher.Constraint("Vertical", 9, 2, 12, 2))
sketch4.addConstraint(Sketcher.Constraint("Vertical", 8, 2, 15, 2))
sketch4.addConstraint(Sketcher.Constraint("Vertical", 7, 2, 16, 2))
sketch4.addConstraint(Sketcher.Constraint("Vertical", 13, 2, 18, 2))
sketch4.addConstraint(Sketcher.Constraint("Vertical", 16, 2, 20, 2))
sketch4.addConstraint(Sketcher.Constraint("Vertical", 15, 2, 21, 2))
sketch4.addConstraint(Sketcher.Constraint("Diameter", 5, Q("12 mm")))
sketch4.addConstraint(Sketcher.Constraint("Distance", 3, Q("70 mm")))
sketch4.addConstraint(Sketcher.Constraint("Distance", 4, Q("30 mm")))
sketch4.addConstraint(Sketcher.Constraint("Distance", 37, Q("45 mm")))
sketch4.addConstraint(Sketcher.Constraint("DistanceX", -1, 1, 0, 2, Q("15 mm")))
sketch4.addConstraint(Sketcher.Constraint("DistanceY", 9, 2, 14, 2, Q("170 mm")))
sketch4.addConstraint(Sketcher.Constraint("DistanceY", 21, 2, -1, 1, Q("175.016999 mm")))
sketch4.addConstraint(Sketcher.Constraint("DistanceY", 26, 1, 26, 2, Q("39.159871 mm")))
sketch4.addConstraint(Sketcher.Constraint("DistanceY", 5, 3, -1, 1, Q("3796.701731 mm")))
sketch4.addConstraint(Sketcher.Constraint("DistanceY", 11, 3, -1, 1, Q("2514.943371 mm")))
sketch4.addConstraint(Sketcher.Constraint("DistanceY", 17, 3, -1, 1, Q("2258.346841 mm")))
sketch4.addConstraint(Sketcher.Constraint("DistanceY", 23, 3, -1, 1, Q("173.323962 mm")))
sketch4.addConstraint(Sketcher.Constraint("DistanceY", 7, 2, -1, 1, Q("2539.619118 mm")))
sketch4.addConstraint(Sketcher.Constraint("DistanceX", 28, 3, 23, 3, Q("86.54101 mm")))
sketch4.addConstraint(Sketcher.Constraint("DistanceY", 1, 2, 5, 3, Q("4.247232 mm")))
pad4 = body.newObject("PartDesign::Pad", "Pad003")
pad4.Profile = sketch4
pad4.Type = "TwoLengths"
pad4.Length = 2.5
pad4.Length2 = 2.5

# Sketch on an angled plane
sketch5 = body.newObject("Sketcher::SketchObject", "Sketch004")
sketch5.Placement = App.Placement(Vector(0, 4.770225, -24.54068), App.Rotation(Vector(1, 0, 0), Vector(0, -0.981627183, -0.190808995), Vector(0, 0.190808995, -0.981627183), "ZXY"))
sketch5.addGeometry(Part.LineSegment(Vector(-45, -120, 0), Vector(15, -120, 0)), False)
sketch5.addGeometry(Part.LineSegment(Vector(15, -120, 0), Vector(15, 30, 0)), False)
sketch5.addGeometry(Part.LineSegment(Vector(15, 30, 0), Vector(-45, 30, 0)), False)
sketch5.addGeometry(Part.LineSegment(Vector(-45, 30, 0), Vector(-45, -120, 0)), False)
sketch5.addGeometry(Part.Circle(Vector(-30, -95, 0), Vector(0, 0, 1), 6), False)
sketch5.addGeometry(Part.Circle(Vector(-30, -55, 0), Vector(0, 0, 1), 6), False)
sketch5.addConstraint(Sketcher.Constraint("Coincident", 0, 2, 1, 1))
sketch5.addConstraint(Sketcher.Constraint("Coincident", 1, 2, 2, 1))
sketch5.addConstraint(Sketcher.Constraint("Coincident", 2, 2, 3, 1))
sketch5.addConstraint(Sketcher.Constraint("Coincident", 3, 2, 0, 1))
sketch5.addConstraint(Sketcher.Constraint("Horizontal", 0))
sketch5.addConstraint(Sketcher.Constraint("Vertical", 1))
sketch5.addConstraint(Sketcher.Constraint("Horizontal", 2))
sketch5.addConstraint(Sketcher.Constraint("Vertical", 3))
sketch5.addConstraint(Sketcher.Constraint("Equal", 4, 5))
sketch5.addConstraint(Sketcher.Constraint("Vertical", 4, 3, 5, 3))
sketch5.addConstraint(Sketcher.Constraint("Diameter", 4, Q("12 mm")))
sketch5.addConstraint(Sketcher.Constraint("DistanceX", 0, 1, 0, 2, Q("60 mm")))
sketch5.addConstraint(Sketcher.Constraint("DistanceY", 1, 1, 1, 2, Q("150 mm")))
sketch5.addConstraint(Sketcher.Constraint("DistanceX", 4, 3, -1, 1, Q("30 mm")))
sketch5.addConstraint(Sketcher.Constraint("DistanceY", 4, 3, -1, 1, Q("95 mm")))
sketch5.addConstraint(Sketcher.Constraint("DistanceY", 5, 3, -1, 1, Q("55 mm")))
sketch5.addConstraint(Sketcher.Constraint("DistanceX", -1, 1, 0, 2, Q("15 mm")))
sketch5.addConstraint(Sketcher.Constraint("DistanceY", 0, 2, -1, 1, Q("120 mm")))
pad5 = body.newObject("PartDesign::Pad", "Pad004")
pad5.Profile = sketch5
pad5.Length = 5

doc.recompute()
